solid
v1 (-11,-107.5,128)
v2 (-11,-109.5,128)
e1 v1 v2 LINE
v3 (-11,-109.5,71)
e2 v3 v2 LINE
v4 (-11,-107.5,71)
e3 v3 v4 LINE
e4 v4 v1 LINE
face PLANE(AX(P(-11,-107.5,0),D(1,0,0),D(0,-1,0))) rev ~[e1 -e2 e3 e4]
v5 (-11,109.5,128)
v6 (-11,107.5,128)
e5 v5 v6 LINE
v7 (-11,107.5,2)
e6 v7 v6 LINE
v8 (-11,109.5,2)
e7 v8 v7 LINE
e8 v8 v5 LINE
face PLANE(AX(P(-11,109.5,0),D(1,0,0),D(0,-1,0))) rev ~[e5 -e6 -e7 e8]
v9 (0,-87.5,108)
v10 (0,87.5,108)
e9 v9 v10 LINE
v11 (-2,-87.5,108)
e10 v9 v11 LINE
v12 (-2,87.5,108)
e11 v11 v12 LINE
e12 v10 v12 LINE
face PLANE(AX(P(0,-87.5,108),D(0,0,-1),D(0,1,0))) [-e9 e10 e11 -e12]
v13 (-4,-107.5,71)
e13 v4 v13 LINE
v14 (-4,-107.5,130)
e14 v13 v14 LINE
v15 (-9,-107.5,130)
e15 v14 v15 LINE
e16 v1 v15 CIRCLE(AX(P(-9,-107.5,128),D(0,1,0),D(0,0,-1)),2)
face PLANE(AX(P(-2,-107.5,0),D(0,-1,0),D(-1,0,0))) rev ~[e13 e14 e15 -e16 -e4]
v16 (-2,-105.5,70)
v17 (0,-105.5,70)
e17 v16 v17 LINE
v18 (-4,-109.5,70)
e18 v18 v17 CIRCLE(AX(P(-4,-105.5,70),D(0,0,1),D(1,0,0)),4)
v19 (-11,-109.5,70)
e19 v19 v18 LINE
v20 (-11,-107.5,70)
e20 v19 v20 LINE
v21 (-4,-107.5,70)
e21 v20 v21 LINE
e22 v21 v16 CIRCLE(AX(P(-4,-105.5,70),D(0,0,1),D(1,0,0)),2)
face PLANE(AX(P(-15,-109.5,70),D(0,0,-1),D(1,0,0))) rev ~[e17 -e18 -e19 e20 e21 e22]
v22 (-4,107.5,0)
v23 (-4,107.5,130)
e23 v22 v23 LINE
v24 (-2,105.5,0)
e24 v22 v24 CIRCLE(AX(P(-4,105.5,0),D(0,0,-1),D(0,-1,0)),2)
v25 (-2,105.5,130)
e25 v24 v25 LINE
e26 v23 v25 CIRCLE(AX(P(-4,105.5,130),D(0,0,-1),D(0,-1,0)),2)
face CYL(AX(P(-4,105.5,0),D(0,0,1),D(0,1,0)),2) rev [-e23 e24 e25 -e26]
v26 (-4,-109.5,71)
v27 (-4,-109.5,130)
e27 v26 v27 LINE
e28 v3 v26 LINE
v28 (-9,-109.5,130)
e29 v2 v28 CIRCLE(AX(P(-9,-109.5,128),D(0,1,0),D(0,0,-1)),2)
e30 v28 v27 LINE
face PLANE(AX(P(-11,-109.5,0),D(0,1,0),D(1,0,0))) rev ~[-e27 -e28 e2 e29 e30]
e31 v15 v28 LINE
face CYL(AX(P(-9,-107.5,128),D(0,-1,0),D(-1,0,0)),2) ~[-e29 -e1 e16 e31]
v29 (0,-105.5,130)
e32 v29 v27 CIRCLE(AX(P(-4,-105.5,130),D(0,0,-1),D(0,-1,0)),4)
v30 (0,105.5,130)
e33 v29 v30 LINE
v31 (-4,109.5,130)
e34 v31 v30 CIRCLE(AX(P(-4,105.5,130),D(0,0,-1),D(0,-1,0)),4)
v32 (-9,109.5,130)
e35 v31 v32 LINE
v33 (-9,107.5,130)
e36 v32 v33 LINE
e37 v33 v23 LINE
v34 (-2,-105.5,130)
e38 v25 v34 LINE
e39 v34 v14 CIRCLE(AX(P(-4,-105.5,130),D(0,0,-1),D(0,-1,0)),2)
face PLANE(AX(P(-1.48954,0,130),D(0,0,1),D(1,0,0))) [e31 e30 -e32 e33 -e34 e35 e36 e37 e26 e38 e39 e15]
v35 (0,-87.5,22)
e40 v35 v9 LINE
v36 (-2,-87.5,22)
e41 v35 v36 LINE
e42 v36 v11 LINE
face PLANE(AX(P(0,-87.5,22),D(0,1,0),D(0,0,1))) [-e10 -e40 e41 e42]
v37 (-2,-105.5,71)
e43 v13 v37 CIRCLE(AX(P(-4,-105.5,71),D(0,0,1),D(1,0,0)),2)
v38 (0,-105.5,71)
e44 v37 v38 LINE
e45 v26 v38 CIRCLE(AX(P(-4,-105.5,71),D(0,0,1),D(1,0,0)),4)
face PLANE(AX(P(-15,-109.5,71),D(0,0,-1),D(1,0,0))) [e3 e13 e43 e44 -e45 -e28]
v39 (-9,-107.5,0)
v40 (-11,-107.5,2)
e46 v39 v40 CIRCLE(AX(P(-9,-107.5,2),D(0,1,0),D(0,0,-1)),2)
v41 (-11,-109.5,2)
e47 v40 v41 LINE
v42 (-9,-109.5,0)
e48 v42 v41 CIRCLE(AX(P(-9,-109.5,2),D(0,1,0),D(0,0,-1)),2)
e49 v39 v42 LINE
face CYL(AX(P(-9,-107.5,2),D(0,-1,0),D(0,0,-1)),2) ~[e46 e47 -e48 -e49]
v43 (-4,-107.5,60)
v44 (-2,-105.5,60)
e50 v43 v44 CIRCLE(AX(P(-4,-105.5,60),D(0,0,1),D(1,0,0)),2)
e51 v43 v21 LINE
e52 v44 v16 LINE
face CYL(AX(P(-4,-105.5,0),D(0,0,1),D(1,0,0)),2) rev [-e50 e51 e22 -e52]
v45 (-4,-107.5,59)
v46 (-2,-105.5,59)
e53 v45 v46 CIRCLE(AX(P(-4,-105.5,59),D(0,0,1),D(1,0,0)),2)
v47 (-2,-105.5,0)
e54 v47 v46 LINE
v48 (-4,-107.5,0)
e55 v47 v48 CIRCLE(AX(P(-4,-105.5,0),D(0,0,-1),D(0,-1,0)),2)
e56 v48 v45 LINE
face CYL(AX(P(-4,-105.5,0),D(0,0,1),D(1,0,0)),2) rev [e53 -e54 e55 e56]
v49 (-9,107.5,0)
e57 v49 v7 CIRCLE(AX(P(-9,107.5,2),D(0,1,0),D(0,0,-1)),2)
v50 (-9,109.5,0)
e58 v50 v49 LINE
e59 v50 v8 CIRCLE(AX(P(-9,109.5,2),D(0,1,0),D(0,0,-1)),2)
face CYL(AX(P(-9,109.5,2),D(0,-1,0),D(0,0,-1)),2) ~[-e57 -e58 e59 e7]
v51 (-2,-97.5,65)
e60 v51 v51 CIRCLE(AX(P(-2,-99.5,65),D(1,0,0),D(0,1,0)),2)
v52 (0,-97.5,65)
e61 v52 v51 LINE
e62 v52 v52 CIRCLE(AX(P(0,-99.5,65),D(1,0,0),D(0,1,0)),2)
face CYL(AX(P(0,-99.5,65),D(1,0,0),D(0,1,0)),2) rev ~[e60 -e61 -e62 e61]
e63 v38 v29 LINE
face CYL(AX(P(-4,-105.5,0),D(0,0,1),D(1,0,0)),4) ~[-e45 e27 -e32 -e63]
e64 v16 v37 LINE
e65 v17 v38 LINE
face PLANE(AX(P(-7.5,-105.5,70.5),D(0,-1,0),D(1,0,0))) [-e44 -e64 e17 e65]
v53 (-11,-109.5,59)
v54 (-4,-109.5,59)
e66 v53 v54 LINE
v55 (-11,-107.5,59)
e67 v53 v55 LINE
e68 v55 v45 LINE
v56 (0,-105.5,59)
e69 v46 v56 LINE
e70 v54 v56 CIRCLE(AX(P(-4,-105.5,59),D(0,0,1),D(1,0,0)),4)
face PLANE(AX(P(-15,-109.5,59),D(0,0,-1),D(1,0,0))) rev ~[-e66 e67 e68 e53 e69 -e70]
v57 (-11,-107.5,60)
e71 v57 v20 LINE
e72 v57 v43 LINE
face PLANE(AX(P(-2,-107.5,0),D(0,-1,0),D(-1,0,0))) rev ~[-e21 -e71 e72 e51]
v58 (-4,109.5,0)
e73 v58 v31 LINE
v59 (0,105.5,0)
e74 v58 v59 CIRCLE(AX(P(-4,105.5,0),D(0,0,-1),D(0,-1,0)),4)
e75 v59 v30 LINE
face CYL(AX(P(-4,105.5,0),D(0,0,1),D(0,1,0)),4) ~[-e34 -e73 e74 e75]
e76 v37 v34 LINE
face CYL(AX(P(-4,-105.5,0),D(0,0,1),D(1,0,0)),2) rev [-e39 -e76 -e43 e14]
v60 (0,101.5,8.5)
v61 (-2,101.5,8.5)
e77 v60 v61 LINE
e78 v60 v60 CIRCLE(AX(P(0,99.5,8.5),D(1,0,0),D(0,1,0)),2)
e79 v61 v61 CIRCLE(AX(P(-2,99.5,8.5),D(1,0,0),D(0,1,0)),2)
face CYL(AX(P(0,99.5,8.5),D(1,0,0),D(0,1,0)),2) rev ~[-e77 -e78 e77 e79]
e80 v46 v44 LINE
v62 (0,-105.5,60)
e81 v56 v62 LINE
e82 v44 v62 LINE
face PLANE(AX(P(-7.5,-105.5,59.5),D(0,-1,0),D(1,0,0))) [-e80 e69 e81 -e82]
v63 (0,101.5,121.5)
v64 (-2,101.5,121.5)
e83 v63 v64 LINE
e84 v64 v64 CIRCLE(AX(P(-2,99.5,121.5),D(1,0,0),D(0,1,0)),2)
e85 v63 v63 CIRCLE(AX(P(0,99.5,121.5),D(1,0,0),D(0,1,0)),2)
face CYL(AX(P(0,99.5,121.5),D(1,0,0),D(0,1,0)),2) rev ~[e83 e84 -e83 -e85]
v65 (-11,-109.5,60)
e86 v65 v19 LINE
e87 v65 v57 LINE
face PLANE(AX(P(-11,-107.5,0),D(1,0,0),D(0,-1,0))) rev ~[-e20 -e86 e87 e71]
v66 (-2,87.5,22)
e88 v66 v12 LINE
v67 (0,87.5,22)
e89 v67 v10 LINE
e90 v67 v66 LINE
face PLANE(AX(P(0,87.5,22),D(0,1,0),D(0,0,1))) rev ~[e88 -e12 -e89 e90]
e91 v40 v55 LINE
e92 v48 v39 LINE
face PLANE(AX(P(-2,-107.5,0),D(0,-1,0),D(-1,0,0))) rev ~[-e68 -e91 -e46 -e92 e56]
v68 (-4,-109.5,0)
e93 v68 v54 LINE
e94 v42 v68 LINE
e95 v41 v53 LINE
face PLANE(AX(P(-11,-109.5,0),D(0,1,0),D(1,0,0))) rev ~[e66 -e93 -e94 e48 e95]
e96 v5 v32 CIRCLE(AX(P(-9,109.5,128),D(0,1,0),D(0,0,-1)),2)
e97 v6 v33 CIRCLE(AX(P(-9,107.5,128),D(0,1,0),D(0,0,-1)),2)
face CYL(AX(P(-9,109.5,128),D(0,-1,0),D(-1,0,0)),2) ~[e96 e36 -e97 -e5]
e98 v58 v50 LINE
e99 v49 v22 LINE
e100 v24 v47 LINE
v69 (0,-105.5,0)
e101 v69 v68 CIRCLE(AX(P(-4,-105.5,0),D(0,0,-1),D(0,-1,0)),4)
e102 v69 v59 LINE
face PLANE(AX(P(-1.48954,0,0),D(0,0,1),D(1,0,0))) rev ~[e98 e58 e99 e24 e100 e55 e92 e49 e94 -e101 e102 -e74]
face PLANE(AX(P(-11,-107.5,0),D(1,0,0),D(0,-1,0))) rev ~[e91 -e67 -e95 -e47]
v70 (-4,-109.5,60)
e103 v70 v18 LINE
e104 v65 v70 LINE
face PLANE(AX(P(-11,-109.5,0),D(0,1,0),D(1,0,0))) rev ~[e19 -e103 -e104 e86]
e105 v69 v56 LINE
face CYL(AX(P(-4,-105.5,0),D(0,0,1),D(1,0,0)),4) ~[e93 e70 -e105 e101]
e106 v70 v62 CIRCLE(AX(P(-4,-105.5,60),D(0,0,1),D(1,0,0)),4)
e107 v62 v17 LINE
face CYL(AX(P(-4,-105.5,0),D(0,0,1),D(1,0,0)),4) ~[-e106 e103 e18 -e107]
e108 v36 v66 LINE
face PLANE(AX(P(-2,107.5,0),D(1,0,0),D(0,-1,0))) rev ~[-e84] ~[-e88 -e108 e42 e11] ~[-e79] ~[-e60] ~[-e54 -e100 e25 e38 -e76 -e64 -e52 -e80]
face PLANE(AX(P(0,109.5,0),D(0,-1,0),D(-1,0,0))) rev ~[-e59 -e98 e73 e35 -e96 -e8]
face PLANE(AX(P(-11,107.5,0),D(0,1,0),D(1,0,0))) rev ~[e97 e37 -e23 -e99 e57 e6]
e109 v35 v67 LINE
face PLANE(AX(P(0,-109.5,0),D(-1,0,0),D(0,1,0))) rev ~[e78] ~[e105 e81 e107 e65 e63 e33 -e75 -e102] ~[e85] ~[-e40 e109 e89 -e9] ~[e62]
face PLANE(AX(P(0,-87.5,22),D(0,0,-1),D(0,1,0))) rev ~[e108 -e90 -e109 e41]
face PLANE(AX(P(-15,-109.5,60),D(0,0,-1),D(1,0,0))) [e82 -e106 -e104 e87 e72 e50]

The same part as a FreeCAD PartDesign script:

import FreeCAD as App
import Part
import Sketcher

V = App.Vector


def edges_at(feature, points):
    """Names of the edges that pass closest to the given points."""
    edges = feature.Shape.Edges
    near = lambda p: min(range(len(edges)), key=lambda i: edges[i].distToShape(Part.Vertex(*p))[0])
    return sorted({f"Edge{near(p) + 1}" for p in points})

doc = App.newDocument("Part")
body = doc.addObject("PartDesign::Body", "Body")

sketch1 = body.newObject("Sketcher::SketchObject", "Sketch")
sketch1.AttachmentSupport = (doc.getObject("XY_Plane"), [""])
sketch1.MapMode = "FlatFace"
sketch1.addGeometry([
    Part.LineSegment(V(0, 109.5, 0), V(-11, 109.5, 0)),
    Part.LineSegment(V(-11, 109.5, 0), V(-11, 107.5, 0)),
    Part.LineSegment(V(-11, 107.5, 0), V(-2, 107.5, 0)),
    Part.LineSegment(V(-2, 107.5, 0), V(-2, -107.5, 0)),
    Part.LineSegment(V(-2, -107.5, 0), V(-11, -107.5, 0)),
    Part.LineSegment(V(-11, -107.5, 0), V(-11, -109.5, 0)),
    Part.LineSegment(V(-11, -109.5, 0), V(0, -109.5, 0)),
    Part.LineSegment(V(0, -109.5, 0), V(0, 109.5, 0)),
], False)
sketch1.addConstraint([
    Sketcher.Constraint("Coincident", 0, 2, 1, 1),
    Sketcher.Constraint("Coincident", 1, 2, 2, 1),
    Sketcher.Constraint("Coincident", 2, 2, 3, 1),
    Sketcher.Constraint("Coincident", 3, 2, 4, 1),
    Sketcher.Constraint("Coincident", 4, 2, 5, 1),
    Sketcher.Constraint("Coincident", 5, 2, 6, 1),
    Sketcher.Constraint("Coincident", 6, 2, 7, 1),
    Sketcher.Constraint("Coincident", 7, 2, 0, 1),
    Sketcher.Constraint("Horizontal", 0),
    Sketcher.Constraint("Vertical", 1),
    Sketcher.Constraint("Horizontal", 2),
    Sketcher.Constraint("Vertical", 3),
    Sketcher.Constraint("Horizontal", 4),
    Sketcher.Constraint("Vertical", 5),
    Sketcher.Constraint("Horizontal", 6),
    Sketcher.Constraint("Vertical", 7),
    Sketcher.Constraint("Symmetric", 6, 2, 7, 2, -1, 1),
    Sketcher.Constraint("Symmetric", 1, 2, 4, 2, -1),
    Sketcher.Constraint("DistanceX", 0, 2, 0, 1, 11.0),
    Sketcher.Constraint("DistanceX", 2, 1, 2, 2, 9.0),
    Sketcher.Constraint("DistanceY", 1, 2, 1, 1, 2.0),
    Sketcher.Constraint("DistanceY", 3, 2, 3, 1, 215.0),
])
pad1 = body.newObject("PartDesign::Pad", "Pad")
pad1.Profile = sketch1
pad1.Length = 130
doc.recompute()

fillet = body.newObject("PartDesign::Fillet", "Fillet")
fillet.Base = (pad1, edges_at(pad1, [(-2, -107.5, 65), (-2, 107.5, 65)]))
fillet.Radius = 2
doc.recompute()

fillet2 = body.newObject("PartDesign::Fillet", "Fillet001")
fillet2.Base = (fillet, edges_at(fillet, [(0, 109.5, 65), (0, -109.5, 65)]))
fillet2.Radius = 4

sketch2 = body.newObject("Sketcher::SketchObject", "Sketch001")
sketch2.AttachmentSupport = (doc.getObject("YZ_Plane"), [""])
sketch2.MapMode = "FlatFace"
sketch2.addGeometry([
    Part.Circle(V(99.5, 8.5, 0), V(0, 0, 1), 2),
    Part.Circle(V(99.5, 121.5, 0), V(0, 0, 1), 2),
    Part.Circle(V(-99.5, 65, 0), V(0, 0, 1), 2),
    Part.LineSegment(V(-87.5, 108, 0), V(-87.5, 22, 0)),
    Part.LineSegment(V(-87.5, 22, 0), V(87.5, 22, 0)),
    Part.LineSegment(V(87.5, 22, 0), V(87.5, 108, 0)),
    Part.LineSegment(V(87.5, 108, 0), V(-87.5, 108, 0)),
], False)
sketch2.addConstraint([
    Sketcher.Constraint("Coincident", 3, 2, 4, 1),
    Sketcher.Constraint("Coincident", 4, 2, 5, 1),
    Sketcher.Constraint("Coincident", 5, 2, 6, 1),
    Sketcher.Constraint("Coincident", 6, 2, 3, 1),
    Sketcher.Constraint("Vertical", 3),
    Sketcher.Constraint("Horizontal", 4),
    Sketcher.Constraint("Vertical", 5),
    Sketcher.Constraint("Horizontal", 6),
    Sketcher.Constraint("Equal", 0, 1),
    Sketcher.Constraint("Equal", 1, 2),
    Sketcher.Constraint("Vertical", 0, 3, 1, 3),
    Sketcher.Constraint("Diameter", 0, 4.0),
    Sketcher.Constraint("DistanceX", 4, 1, 4, 2, 175.0),
    Sketcher.Constraint("DistanceY", 3, 2, 3, 1, 86.0),
    Sketcher.Constraint("DistanceY", -1, 1, 2, 3, 65.0),
    Sketcher.Constraint("DistanceY", -1, 1, 3, 2, 22.0),
    Sketcher.Constraint("DistanceY", 0, 3, 1, 3, 113.0),
    Sketcher.Constraint("DistanceX", 2, 3, 0, 3, 199.0),
    Sketcher.Constraint("DistanceX", 2, 3, 3, 2, 12.0),
    Sketcher.Constraint("DistanceX", -1, 1, 0, 3, 99.5),
    Sketcher.Constraint("DistanceY", -1, 1, 0, 3, 8.5),
])
pocket1 = body.newObject("PartDesign::Pocket", "Pocket")
pocket1.Profile = sketch2
pocket1.Length = 5
doc.recompute()

fillet3 = body.newObject("PartDesign::Fillet", "Fillet002")
fillet3.Base = (pocket1, edges_at(pocket1, [
    (-11, -108.5, 0),
    (-11, -108.5, 130),
    (-11, 108.5, 0),
    (-11, 108.5, 130),
]))
fillet3.Radius = 2

sketch3 = body.newObject("Sketcher::SketchObject", "Sketch002")
sketch3.AttachmentSupport = (doc.getObject("XZ_Plane"), [""])
sketch3.MapMode = "FlatFace"
sketch3.AttachmentOffset = App.Placement(V(0, 0, 109.5), App.Rotation())
sketch3.addGeometry([
    Part.LineSegment(V(-15, 60, 0), V(-15, 59, 0)),
    Part.LineSegment(V(-15, 59, 0), V(0, 59, 0)),
    Part.LineSegment(V(0, 59, 0), V(0, 60, 0)),
    Part.LineSegment(V(0, 60, 0), V(-15, 60, 0)),
    Part.LineSegment(V(-15, 71, 0), V(-15, 70, 0)),
    Part.LineSegment(V(-15, 70, 0), V(0, 70, 0)),
    Part.LineSegment(V(0, 70, 0), V(0, 71, 0)),
    Part.LineSegment(V(0, 71, 0), V(-15, 71, 0)),
], False)
sketch3.addConstraint([
    Sketcher.Constraint("Coincident", 0, 2, 1, 1),
    Sketcher.Constraint("Coincident", 1, 2, 2, 1),
    Sketcher.Constraint("Coincident", 2, 2, 3, 1),
    Sketcher.Constraint("Coincident", 3, 2, 0, 1),
    Sketcher.Constraint("Coincident", 4, 2, 5, 1),
    Sketcher.Constraint("Coincident", 5, 2, 6, 1),
    Sketcher.Constraint("Coincident", 6, 2, 7, 1),
    Sketcher.Constraint("Coincident", 7, 2, 4, 1),
    Sketcher.Constraint("Vertical", 0),
    Sketcher.Constraint("Horizontal", 1),
    Sketcher.Constraint("Vertical", 2),
    Sketcher.Constraint("Horizontal", 3),
    Sketcher.Constraint("Vertical", 4),
    Sketcher.Constraint("Horizontal", 5),
    Sketcher.Constraint("Vertical", 6),
    Sketcher.Constraint("Horizontal", 7),
    Sketcher.Constraint("PointOnObject", 1, 2, -2),
    Sketcher.Constraint("PointOnObject", 5, 2, -2),
    Sketcher.Constraint("Vertical", 3, 2, 4, 2),
    Sketcher.Constraint("Equal", 2, 4),
    Sketcher.Constraint("DistanceX", 1, 1, 1, 2, 15.0),
    Sketcher.Constraint("DistanceY", 0, 2, 0, 1, 1.0),
    Sketcher.Constraint("DistanceY", -1, 1, 0, 2, 59.0),
    Sketcher.Constraint("DistanceY", -1, 1, 4, 2, 70.0),
])
pocket2 = body.newObject("PartDesign::Pocket", "Pocket001")
pocket2.Profile = sketch3
pocket2.Length = 4

doc.recompute()
